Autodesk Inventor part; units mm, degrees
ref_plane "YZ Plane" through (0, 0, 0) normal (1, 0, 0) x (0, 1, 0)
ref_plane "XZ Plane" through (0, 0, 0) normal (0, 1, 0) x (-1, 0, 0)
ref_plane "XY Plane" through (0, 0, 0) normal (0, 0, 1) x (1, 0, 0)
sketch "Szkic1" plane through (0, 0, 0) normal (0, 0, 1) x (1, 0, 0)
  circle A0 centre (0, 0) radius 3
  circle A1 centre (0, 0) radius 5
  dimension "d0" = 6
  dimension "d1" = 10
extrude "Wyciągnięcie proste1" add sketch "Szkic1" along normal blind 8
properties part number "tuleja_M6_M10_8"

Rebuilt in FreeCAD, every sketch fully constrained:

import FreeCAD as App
import Part
import Sketcher

doc = App.newDocument("Part")
body = doc.addObject("PartDesign::Body", "Body")

# Sketch on XY plane
sketch1 = body.newObject("Sketcher::SketchObject", "Sketch")
sketch1.AttachmentSupport = (doc.getObject("XY_Plane"), [""])
sketch1.MapMode = "FlatFace"
sketch1.addGeometry(Part.Circle(App.Vector(0, 0, 0), App.Vector(0, 0, 1), 5), False)
sketch1.addGeometry(Part.Circle(App.Vector(0, 0, 0), App.Vector(0, 0, 1), 3), False)
sketch1.addConstraint(Sketcher.Constraint("Coincident", 0, 3, -1, 1))
sketch1.addConstraint(Sketcher.Constraint("Coincident", 1, 3, -1, 1))
sketch1.addConstraint(Sketcher.Constraint("Diameter", 0, 10.0))
sketch1.addConstraint(Sketcher.Constraint("Diameter", 1, 6.0))
pad1 = body.newObject("PartDesign::Pad", "Pad")
pad1.Profile = sketch1
pad1.Length = 8

doc.recompute()
